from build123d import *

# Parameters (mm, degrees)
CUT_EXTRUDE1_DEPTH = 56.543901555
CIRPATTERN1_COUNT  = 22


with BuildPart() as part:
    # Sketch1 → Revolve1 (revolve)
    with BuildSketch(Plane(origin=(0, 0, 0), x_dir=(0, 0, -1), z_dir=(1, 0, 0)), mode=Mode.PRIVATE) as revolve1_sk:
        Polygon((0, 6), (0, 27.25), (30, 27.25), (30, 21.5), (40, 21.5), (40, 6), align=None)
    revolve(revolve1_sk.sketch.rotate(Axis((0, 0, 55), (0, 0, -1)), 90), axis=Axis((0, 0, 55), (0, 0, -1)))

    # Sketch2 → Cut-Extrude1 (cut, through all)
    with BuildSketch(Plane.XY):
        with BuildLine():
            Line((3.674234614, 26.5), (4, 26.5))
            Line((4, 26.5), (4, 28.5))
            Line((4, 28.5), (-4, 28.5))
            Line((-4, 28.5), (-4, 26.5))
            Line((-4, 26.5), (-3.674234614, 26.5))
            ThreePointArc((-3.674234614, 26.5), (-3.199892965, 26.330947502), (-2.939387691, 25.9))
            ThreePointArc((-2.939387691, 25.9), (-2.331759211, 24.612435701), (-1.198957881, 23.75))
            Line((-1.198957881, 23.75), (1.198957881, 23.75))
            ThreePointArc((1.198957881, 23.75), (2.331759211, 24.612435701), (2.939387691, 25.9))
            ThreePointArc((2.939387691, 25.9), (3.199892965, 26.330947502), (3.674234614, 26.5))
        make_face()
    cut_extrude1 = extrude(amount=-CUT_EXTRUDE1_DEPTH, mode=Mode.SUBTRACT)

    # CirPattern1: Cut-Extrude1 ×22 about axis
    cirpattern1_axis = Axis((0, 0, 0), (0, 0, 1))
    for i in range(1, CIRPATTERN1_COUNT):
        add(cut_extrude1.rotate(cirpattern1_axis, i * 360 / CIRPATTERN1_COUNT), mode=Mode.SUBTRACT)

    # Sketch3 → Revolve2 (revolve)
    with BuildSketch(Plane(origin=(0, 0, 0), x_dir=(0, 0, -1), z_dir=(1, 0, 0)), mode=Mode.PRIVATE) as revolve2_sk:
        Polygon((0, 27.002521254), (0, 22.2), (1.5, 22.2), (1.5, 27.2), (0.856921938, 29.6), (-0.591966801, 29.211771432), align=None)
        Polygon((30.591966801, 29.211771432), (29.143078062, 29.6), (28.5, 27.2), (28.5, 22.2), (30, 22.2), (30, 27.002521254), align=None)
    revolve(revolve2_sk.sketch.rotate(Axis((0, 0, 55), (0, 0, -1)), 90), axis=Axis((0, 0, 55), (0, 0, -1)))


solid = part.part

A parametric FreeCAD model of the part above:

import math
import FreeCAD as App
import Part
import Sketcher

V = App.Vector
Q = App.Units.Quantity

doc = App.newDocument("Part")
body = doc.addObject("PartDesign::Body", "Body")

# Sketch on YZ plane
sketch1 = body.newObject("Sketcher::SketchObject", "Sketch")
sketch1.AttachmentSupport = (doc.getObject("YZ_Plane"), [""])
sketch1.MapMode = "FlatFace"
sketch1.addGeometry([
    Part.LineSegment(V(27, 0, 0), V(6, 0, 0)),  # 0
    Part.LineSegment(V(6, 0, 0), V(6, -40, 0)),  # 1
    Part.LineSegment(V(6, -40, 0), V(22, -40, 0)),  # 2
    Part.LineSegment(V(22, -40, 0), V(22, -30, 0)),  # 3
    Part.LineSegment(V(22, -30, 0), V(27, -30, 0)),  # 4
    Part.LineSegment(V(27, -30, 0), V(27, 0, 0)),  # 5
], False)
sketch1.addConstraint([
    Sketcher.Constraint("Coincident", 0, 2, 1, 1),
    Sketcher.Constraint("Coincident", 1, 2, 2, 1),
    Sketcher.Constraint("Coincident", 2, 2, 3, 1),
    Sketcher.Constraint("Coincident", 3, 2, 4, 1),
    Sketcher.Constraint("Coincident", 4, 2, 5, 1),
    Sketcher.Constraint("Coincident", 5, 2, 0, 1),
    Sketcher.Constraint("Horizontal", 0),
    Sketcher.Constraint("Vertical", 1),
    Sketcher.Constraint("Horizontal", 2),
    Sketcher.Constraint("Vertical", 3),
    Sketcher.Constraint("Horizontal", 4),
    Sketcher.Constraint("Vertical", 5),
    Sketcher.Constraint("PointOnObject", 0, 2, -1),
    Sketcher.Constraint("DistanceY", 1, 2, 1, 1, Q("40 mm")),
    Sketcher.Constraint("DistanceY", 3, 1, 3, 2, Q("10 mm")),
    Sketcher.Constraint("DistanceX", 2, 1, 2, 2, Q("15.5 mm")),
    Sketcher.Constraint("DistanceX", -1, 1, 0, 2, Q("6 mm")),
    Sketcher.Constraint("DistanceX", 0, 2, 0, 1, Q("21.25 mm")),
])
revolution = body.newObject("PartDesign::Revolution", "Revolution")
revolution.Profile = sketch1
revolution.ReferenceAxis = (sketch1, ["V_Axis"])
revolution.Angle = 360

# Sketch on XY plane
sketch2 = body.newObject("Sketcher::SketchObject", "Sketch001")
sketch2.AttachmentSupport = (doc.getObject("XY_Plane"), [""])
sketch2.MapMode = "FlatFace"
sketch2.addGeometry([
    Part.LineSegment(V(3.67, 26.5, 0), V(4, 26.5, 0)),  # 0
    Part.LineSegment(V(4, 26.5, 0), V(4, 28.5, 0)),  # 1
    Part.LineSegment(V(4, 28.5, 0), V(-4, 28.5, 0)),  # 2
    Part.LineSegment(V(-4, 28.5, 0), V(-4, 26.5, 0)),  # 3
    Part.LineSegment(V(-4, 26.5, 0), V(-3.67, 26.5, 0)),  # 4
    Part.ArcOfCircle(Part.Circle(V(-3.67, 25.75, 0), V(0, 0, 1), 0.75), math.radians(12), math.radians(90)),  # 5
    Part.ArcOfCircle(Part.Circle(V(0, 26.5, 0), V(0, 0, 1), 3), math.radians(-168), math.radians(-114)),  # 6
    Part.LineSegment(V(-1.2, 23.75, 0), V(1.2, 23.75, 0)),  # 7
    Part.ArcOfCircle(Part.Circle(V(0, 26.5, 0), V(0, 0, 1), 3), math.radians(-66), math.radians(-12)),  # 8
    Part.ArcOfCircle(Part.Circle(V(3.67, 25.75, 0), V(0, 0, 1), 0.75), math.radians(90), math.radians(168)),  # 9
], False)
sketch2.addConstraint([
    Sketcher.Constraint("Coincident", 0, 2, 1, 1),
    Sketcher.Constraint("Coincident", 1, 2, 2, 1),
    Sketcher.Constraint("Coincident", 2, 2, 3, 1),
    Sketcher.Constraint("Coincident", 3, 2, 4, 1),
    Sketcher.Constraint("Tangent", 4, 2, 5, 2),
    Sketcher.Constraint("Tangent", 5, 1, 6, 1),
    Sketcher.Constraint("Coincident", 6, 2, 7, 1),
    Sketcher.Constraint("Coincident", 7, 2, 8, 1),
    Sketcher.Constraint("Tangent", 8, 2, 9, 2),
    Sketcher.Constraint("Tangent", 9, 1, 0, 1),
    Sketcher.Constraint("Horizontal", 0),
    Sketcher.Constraint("Vertical", 1),
    Sketcher.Constraint("Horizontal", 2),
    Sketcher.Constraint("Vertical", 3),
    Sketcher.Constraint("Horizontal", 4),
    Sketcher.Constraint("Horizontal", 7),
    Sketcher.Constraint("Coincident", 8, 3, 6, 3),
    Sketcher.Constraint("Equal", 6, 8),
    Sketcher.Constraint("Equal", 5, 9),
    Sketcher.Constraint("Symmetric", 5, 3, 9, 3, -2),
    Sketcher.Constraint("Horizontal", 8, 3, 0, 2),
    Sketcher.Constraint("Equal", 0, 4),
    Sketcher.Constraint("Radius", 6, Q("3 mm")),
    Sketcher.Constraint("DistanceX", 2, 2, 2, 1, Q("8 mm")),
    Sketcher.Constraint("DistanceY", 1, 1, 1, 2, Q("2 mm")),
    Sketcher.Constraint("Radius", 5, Q("0.75 mm")),
    Sketcher.Constraint("DistanceY", 6, 2, 5, 3, Q("2 mm")),
    Sketcher.Constraint("DistanceY", -1, 1, 6, 3, Q("26.5 mm")),
])
pocket1 = body.newObject("PartDesign::Pocket", "Pocket")
pocket1.Profile = sketch2
pocket1.Type = "ThroughAll"
doc.recompute()

polarpattern = body.newObject("PartDesign::PolarPattern", "PolarPattern")
polarpattern.Originals = [pocket1]
polarpattern.Axis = (doc.getObject("Z_Axis"), [""])
polarpattern.Angle = 360
polarpattern.Occurrences = 22
body.Tip = polarpattern

# Sketch on YZ plane
sketch3 = body.newObject("Sketcher::SketchObject", "Sketch002")
sketch3.AttachmentSupport = (doc.getObject("YZ_Plane"), [""])
sketch3.MapMode = "FlatFace"
sketch3.addGeometry([
    Part.LineSegment(V(27, 0, 0), V(22.2, 0, 0)),  # 0
    Part.LineSegment(V(22.2, 0, 0), V(22.2, -1.5, 0)),  # 1
    Part.LineSegment(V(22.2, -1.5, 0), V(27.2, -1.5, 0)),  # 2
    Part.LineSegment(V(27.2, -1.5, 0), V(29.6, -0.9, 0)),  # 3
    Part.LineSegment(V(29.6, -0.9, 0), V(29.2, 0.6, 0)),  # 4
    Part.LineSegment(V(29.2, 0.6, 0), V(27, 0, 0)),  # 5
    Part.LineSegment(V(29.2, -30.6, 0), V(29.6, -29.1, 0)),  # 6
    Part.LineSegment(V(29.6, -29.1, 0), V(27.2, -28.5, 0)),  # 7
    Part.LineSegment(V(27.2, -28.5, 0), V(22.2, -28.5, 0)),  # 8
    Part.LineSegment(V(22.2, -28.5, 0), V(22.2, -30, 0)),  # 9
    Part.LineSegment(V(22.2, -30, 0), V(27, -30, 0)),  # 10
    Part.LineSegment(V(27, -30, 0), V(29.2, -30.6, 0)),  # 11
], False)
sketch3.addConstraint([
    Sketcher.Constraint("Coincident", 0, 2, 1, 1),
    Sketcher.Constraint("Coincident", 1, 2, 2, 1),
    Sketcher.Constraint("Coincident", 2, 2, 3, 1),
    Sketcher.Constraint("Coincident", 3, 2, 4, 1),
    Sketcher.Constraint("Coincident", 4, 2, 5, 1),
    Sketcher.Constraint("Coincident", 5, 2, 0, 1),
    Sketcher.Constraint("Coincident", 6, 2, 7, 1),
    Sketcher.Constraint("Coincident", 7, 2, 8, 1),
    Sketcher.Constraint("Coincident", 8, 2, 9, 1),
    Sketcher.Constraint("Coincident", 9, 2, 10, 1),
    Sketcher.Constraint("Coincident", 10, 2, 11, 1),
    Sketcher.Constraint("Coincident", 11, 2, 6, 1),
    Sketcher.Constraint("Horizontal", 0),
    Sketcher.Constraint("Vertical", 1),
    Sketcher.Constraint("Horizontal", 2),
    Sketcher.Constraint("Horizontal", 8),
    Sketcher.Constraint("Vertical", 9),
    Sketcher.Constraint("Horizontal", 10),
    Sketcher.Constraint("PointOnObject", 0, 2, -1),
    Sketcher.Constraint("Perpendicular", 3, 4),
    Sketcher.Constraint("Perpendicular", 4, 5),
    Sketcher.Constraint("Perpendicular", 6, 7),
    Sketcher.Constraint("Parallel", 7, 11),
    Sketcher.Constraint("Vertical", 3, 2, 6, 2),
    Sketcher.Constraint("Vertical", 2, 2, 7, 2),
    Sketcher.Constraint("Vertical", 1, 2, 8, 2),
    Sketcher.Constraint("Vertical", 5, 2, 10, 2),
    Sketcher.Constraint("Vertical", 4, 2, 11, 2),
    Sketcher.Constraint("Equal", 1, 9),
    Sketcher.Constraint("DistanceX", 2, 1, 2, 2, Q("5 mm")),
    Sketcher.Constraint("Angle", 3, Q("15 deg")),
    Sketcher.Constraint("DistanceY", 1, 2, 1, 1, Q("1.5 mm")),
    Sketcher.Constraint("DistanceY", 9, 2, -1, 1, Q("30 mm")),
    Sketcher.Constraint("Distance", 4, Q("1.5 mm")),
    Sketcher.Constraint("DistanceX", -1, 1, 0, 2, Q("22.2 mm")),
    Sketcher.Constraint("DistanceX", -1, 1, 3, 2, Q("29.6 mm")),
])
revolution2 = body.newObject("PartDesign::Revolution", "Revolution001")
revolution2.Profile = sketch3
revolution2.ReferenceAxis = (sketch3, ["V_Axis"])
revolution2.Angle = 360

doc.recompute()
